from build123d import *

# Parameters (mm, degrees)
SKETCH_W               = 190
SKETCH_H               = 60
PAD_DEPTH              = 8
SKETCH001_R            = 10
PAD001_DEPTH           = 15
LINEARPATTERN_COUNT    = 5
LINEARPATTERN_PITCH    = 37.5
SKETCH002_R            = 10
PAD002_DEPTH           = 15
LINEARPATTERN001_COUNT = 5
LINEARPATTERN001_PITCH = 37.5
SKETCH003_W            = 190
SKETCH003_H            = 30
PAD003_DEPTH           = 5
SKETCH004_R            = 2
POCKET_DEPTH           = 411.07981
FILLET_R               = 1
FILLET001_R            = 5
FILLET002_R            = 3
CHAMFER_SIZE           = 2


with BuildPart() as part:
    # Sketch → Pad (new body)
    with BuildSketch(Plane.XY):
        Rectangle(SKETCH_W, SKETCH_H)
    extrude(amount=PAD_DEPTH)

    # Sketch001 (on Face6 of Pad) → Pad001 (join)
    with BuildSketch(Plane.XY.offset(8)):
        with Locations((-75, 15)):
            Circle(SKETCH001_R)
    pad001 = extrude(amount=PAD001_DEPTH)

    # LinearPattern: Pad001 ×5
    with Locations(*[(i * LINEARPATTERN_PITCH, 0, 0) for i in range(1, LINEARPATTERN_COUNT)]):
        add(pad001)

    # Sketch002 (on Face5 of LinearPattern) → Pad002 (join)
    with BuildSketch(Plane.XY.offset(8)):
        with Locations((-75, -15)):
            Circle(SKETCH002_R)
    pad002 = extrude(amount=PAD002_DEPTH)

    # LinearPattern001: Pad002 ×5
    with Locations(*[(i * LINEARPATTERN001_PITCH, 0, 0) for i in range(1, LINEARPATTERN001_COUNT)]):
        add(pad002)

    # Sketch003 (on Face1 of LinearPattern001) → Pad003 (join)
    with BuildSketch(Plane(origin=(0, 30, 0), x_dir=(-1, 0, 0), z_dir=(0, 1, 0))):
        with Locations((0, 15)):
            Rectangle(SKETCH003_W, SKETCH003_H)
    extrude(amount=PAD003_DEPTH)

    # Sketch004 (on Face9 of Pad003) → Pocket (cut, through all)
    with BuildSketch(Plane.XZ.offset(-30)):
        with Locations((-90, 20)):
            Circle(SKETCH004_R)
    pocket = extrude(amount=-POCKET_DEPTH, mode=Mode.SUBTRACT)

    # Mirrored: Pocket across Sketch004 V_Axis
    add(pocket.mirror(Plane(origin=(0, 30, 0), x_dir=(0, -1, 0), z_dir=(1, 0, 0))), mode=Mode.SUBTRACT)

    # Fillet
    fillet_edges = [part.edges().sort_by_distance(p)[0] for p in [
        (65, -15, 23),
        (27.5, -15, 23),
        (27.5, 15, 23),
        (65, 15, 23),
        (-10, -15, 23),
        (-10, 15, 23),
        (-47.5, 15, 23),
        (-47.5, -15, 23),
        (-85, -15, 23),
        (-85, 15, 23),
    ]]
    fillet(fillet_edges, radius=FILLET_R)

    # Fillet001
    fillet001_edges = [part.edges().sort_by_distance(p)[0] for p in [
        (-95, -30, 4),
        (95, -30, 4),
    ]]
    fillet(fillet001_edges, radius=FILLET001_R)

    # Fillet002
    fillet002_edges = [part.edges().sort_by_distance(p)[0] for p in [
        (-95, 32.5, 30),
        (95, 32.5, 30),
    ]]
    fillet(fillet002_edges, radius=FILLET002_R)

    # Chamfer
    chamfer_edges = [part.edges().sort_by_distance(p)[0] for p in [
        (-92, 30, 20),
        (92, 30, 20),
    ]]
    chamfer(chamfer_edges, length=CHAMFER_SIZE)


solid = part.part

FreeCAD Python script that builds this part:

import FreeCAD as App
import Part
import Sketcher
from FreeCAD import Vector


def edges_at(feature, points):
    """Names of the edges that pass closest to the given points."""
    edges = feature.Shape.Edges
    near = lambda p: min(range(len(edges)), key=lambda i: edges[i].distToShape(Part.Vertex(*p))[0])
    return sorted({f"Edge{near(p) + 1}" for p in points})


def add_polygon(sketch, points):
    """Adds a closed chain of lines whose ends are joined by coincident constraints."""
    first, n = sketch.GeometryCount, len(points)
    for a, b in zip(points, points[1:] + points[:1]):
        sketch.addGeometry(Part.LineSegment(App.Vector(*a, 0), App.Vector(*b, 0)), False)
    for i in range(n):
        sketch.addConstraint(Sketcher.Constraint("Coincident", first + i, 2, first + (i + 1) % n, 1))

doc = App.newDocument("Part")
body = doc.addObject("PartDesign::Body", "Body")

sketch1 = body.newObject("Sketcher::SketchObject", "Sketch")
sketch1.AttachmentSupport = (doc.getObject("XY_Plane"), [""])
sketch1.MapMode = "FlatFace"
add_polygon(sketch1, [(-95, 30), (-95, -30), (95, -30), (95, 30)])
sketch1.addConstraint([
    Sketcher.Constraint("Vertical", 0),
    Sketcher.Constraint("Horizontal", 1),
    Sketcher.Constraint("Vertical", 2),
    Sketcher.Constraint("Horizontal", 3),
    Sketcher.Constraint("Symmetric", 0, 2, 2, 2, -1, 1),
    Sketcher.Constraint("DistanceX", 1, 1, 1, 2, 190.0),
    Sketcher.Constraint("DistanceY", 0, 2, 0, 1, 60.0),
])
pad1 = body.newObject("PartDesign::Pad", "Pad")
pad1.Profile = sketch1
pad1.Length = 8

sketch2 = body.newObject("Sketcher::SketchObject", "Sketch001")
sketch2.AttachmentSupport = (doc.getObject("XY_Plane"), [""])
sketch2.MapMode = "FlatFace"
sketch2.AttachmentOffset = App.Placement(Vector(0, 0, 8), App.Rotation())
sketch2.addGeometry(Part.Circle(Vector(-75, 15, 0), Vector(0, 0, 1), 10), False)
sketch2.addConstraint([
    Sketcher.Constraint("Diameter", 0, 20.0),
    Sketcher.Constraint("DistanceX", 0, 3, -1, 1, 75.0),
    Sketcher.Constraint("DistanceY", -1, 1, 0, 3, 15.0),
])
pad2 = body.newObject("PartDesign::Pad", "Pad001")
pad2.Profile = sketch2
pad2.Length = 15
doc.recompute()

linearpattern = body.newObject("PartDesign::LinearPattern", "LinearPattern")
linearpattern.Originals = [pad2]
linearpattern.Direction = (doc.getObject("X_Axis"), [""])
linearpattern.Mode = "offset"
linearpattern.Offset = 37.5
linearpattern.Occurrences = 5
body.Tip = linearpattern

sketch3 = body.newObject("Sketcher::SketchObject", "Sketch002")
sketch3.AttachmentSupport = (doc.getObject("XY_Plane"), [""])
sketch3.MapMode = "FlatFace"
sketch3.AttachmentOffset = App.Placement(Vector(0, 0, 8), App.Rotation())
sketch3.addGeometry(Part.Circle(Vector(-75, -15, 0), Vector(0, 0, 1), 10), False)
sketch3.addConstraint([
    Sketcher.Constraint("Diameter", 0, 20.0),
    Sketcher.Constraint("DistanceX", 0, 3, -1, 1, 75.0),
    Sketcher.Constraint("DistanceY", 0, 3, -1, 1, 15.0),
])
pad3 = body.newObject("PartDesign::Pad", "Pad002")
pad3.Profile = sketch3
pad3.Length = 15
doc.recompute()

linearpattern2 = body.newObject("PartDesign::LinearPattern", "LinearPattern001")
linearpattern2.Originals = [pad3]
linearpattern2.Direction = (doc.getObject("X_Axis"), [""])
linearpattern2.Mode = "offset"
linearpattern2.Offset = 37.5
linearpattern2.Occurrences = 5
body.Tip = linearpattern2

sketch4 = body.newObject("Sketcher::SketchObject", "Sketch003")
sketch4.AttachmentSupport = (doc.getObject("XZ_Plane"), [""])
sketch4.MapMode = "FlatFace"
sketch4.AttachmentOffset = App.Placement(Vector(0, 0, -30), App.Rotation())
add_polygon(sketch4, [(95, 30), (95, 0), (-95, 0), (-95, 30)])
sketch4.addConstraint([
    Sketcher.Constraint("Vertical", 0),
    Sketcher.Constraint("Horizontal", 1),
    Sketcher.Constraint("Vertical", 2),
    Sketcher.Constraint("Horizontal", 3),
    Sketcher.Constraint("Symmetric", 0, 2, 1, 2, -1, 1),
    Sketcher.Constraint("DistanceX", 1, 2, 1, 1, 190.0),
    Sketcher.Constraint("DistanceY", 0, 2, 0, 1, 30.0),
])
pad4 = body.newObject("PartDesign::Pad", "Pad003")
pad4.Profile = sketch4
pad4.Length = 5
pad4.Reversed = True

sketch5 = body.newObject("Sketcher::SketchObject", "Sketch004")
sketch5.AttachmentSupport = (doc.getObject("XZ_Plane"), [""])
sketch5.MapMode = "FlatFace"
sketch5.AttachmentOffset = App.Placement(Vector(0, 0, -30), App.Rotation())
sketch5.addGeometry(Part.Circle(Vector(-90, 20, 0), Vector(0, 0, 1), 2), False)
sketch5.addConstraint([
    Sketcher.Constraint("Diameter", 0, 4.0),
    Sketcher.Constraint("DistanceX", 0, 3, -1, 1, 90.0),
    Sketcher.Constraint("DistanceY", -1, 1, 0, 3, 20.0),
])
pocket1 = body.newObject("PartDesign::Pocket", "Pocket")
pocket1.Profile = sketch5
pocket1.Type = "ThroughAll"
doc.recompute()

mirrored = body.newObject("PartDesign::Mirrored", "Mirrored")
mirrored.Originals = [pocket1]
mirrored.MirrorPlane = (doc.getObject("YZ_Plane"), [""])
body.Tip = mirrored
doc.recompute()

fillet = body.newObject("PartDesign::Fillet", "Fillet")
fillet.Base = (mirrored, edges_at(mirrored, [
    (65, -15, 23),
    (27.5, -15, 23),
    (27.5, 15, 23),
    (65, 15, 23),
    (-10, -15, 23),
    (-10, 15, 23),
    (-47.5, 15, 23),
    (-47.5, -15, 23),
    (-85, -15, 23),
    (-85, 15, 23),
]))
fillet.Radius = 1
doc.recompute()

fillet2 = body.newObject("PartDesign::Fillet", "Fillet001")
fillet2.Base = (fillet, edges_at(fillet, [(-95, -30, 4), (95, -30, 4)]))
fillet2.Radius = 5
doc.recompute()

fillet3 = body.newObject("PartDesign::Fillet", "Fillet002")
fillet3.Base = (fillet2, edges_at(fillet2, [(-95, 32.5, 30), (95, 32.5, 30)]))
fillet3.Radius = 3
doc.recompute()

chamfer = body.newObject("PartDesign::Chamfer", "Chamfer")
chamfer.Base = (fillet3, edges_at(fillet3, [(-92, 30, 20), (92, 30, 20)]))
chamfer.Size = 2

doc.recompute()
